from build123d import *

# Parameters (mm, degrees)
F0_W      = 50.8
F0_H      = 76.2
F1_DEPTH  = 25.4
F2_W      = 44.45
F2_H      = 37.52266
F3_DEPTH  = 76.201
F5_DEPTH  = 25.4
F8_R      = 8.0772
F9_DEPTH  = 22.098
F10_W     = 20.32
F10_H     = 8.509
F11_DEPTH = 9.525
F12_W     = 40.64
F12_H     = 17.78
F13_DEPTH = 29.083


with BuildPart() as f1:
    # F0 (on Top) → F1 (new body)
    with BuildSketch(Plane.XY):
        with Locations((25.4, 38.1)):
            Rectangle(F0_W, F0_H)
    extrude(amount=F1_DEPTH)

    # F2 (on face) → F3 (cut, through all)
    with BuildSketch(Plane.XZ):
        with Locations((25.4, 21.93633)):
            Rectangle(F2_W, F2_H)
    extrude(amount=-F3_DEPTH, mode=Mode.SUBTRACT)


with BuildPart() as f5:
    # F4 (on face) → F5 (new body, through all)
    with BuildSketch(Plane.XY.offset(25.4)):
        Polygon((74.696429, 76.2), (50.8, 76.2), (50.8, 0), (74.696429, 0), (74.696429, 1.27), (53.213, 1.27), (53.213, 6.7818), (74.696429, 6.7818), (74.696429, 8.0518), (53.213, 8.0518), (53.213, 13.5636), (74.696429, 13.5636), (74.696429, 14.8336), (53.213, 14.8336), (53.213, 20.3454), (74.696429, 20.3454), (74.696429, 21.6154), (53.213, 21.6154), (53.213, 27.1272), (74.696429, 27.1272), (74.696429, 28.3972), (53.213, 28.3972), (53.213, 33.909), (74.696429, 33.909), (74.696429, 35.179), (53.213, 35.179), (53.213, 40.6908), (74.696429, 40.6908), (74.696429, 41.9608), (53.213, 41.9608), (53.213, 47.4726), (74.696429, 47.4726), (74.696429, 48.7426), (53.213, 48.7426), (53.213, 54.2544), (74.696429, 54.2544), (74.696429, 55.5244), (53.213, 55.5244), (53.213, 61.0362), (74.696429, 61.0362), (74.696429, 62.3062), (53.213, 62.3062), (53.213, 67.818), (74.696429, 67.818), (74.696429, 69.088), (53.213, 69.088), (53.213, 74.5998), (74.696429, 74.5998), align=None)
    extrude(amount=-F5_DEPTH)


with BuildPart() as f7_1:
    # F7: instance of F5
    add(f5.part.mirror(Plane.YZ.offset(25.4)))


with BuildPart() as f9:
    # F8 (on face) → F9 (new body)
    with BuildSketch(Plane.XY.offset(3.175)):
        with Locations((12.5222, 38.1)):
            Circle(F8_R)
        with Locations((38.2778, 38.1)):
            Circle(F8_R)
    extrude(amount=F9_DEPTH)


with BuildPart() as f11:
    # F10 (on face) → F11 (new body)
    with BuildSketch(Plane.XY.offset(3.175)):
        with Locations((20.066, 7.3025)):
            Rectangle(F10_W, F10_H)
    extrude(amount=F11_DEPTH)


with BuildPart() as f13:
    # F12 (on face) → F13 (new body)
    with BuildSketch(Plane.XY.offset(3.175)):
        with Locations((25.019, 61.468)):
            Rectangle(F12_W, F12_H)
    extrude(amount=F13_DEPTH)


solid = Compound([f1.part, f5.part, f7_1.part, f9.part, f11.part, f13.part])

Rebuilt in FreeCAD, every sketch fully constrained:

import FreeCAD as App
import Part
import Sketcher

V = App.Vector
Q = App.Units.Quantity


def add_polygon(sketch, points):
    """Adds a closed chain of lines whose ends are joined by coincident constraints."""
    first, n = sketch.GeometryCount, len(points)
    for a, b in zip(points, points[1:] + points[:1]):
        sketch.addGeometry(Part.LineSegment(App.Vector(*a, 0), App.Vector(*b, 0)), False)
    for i in range(n):
        sketch.addConstraint(Sketcher.Constraint("Coincident", first + i, 2, first + (i + 1) % n, 1))

doc = App.newDocument("Part")
params = doc.addObject("Spreadsheet::Sheet", "Params")
for row, (alias, value) in enumerate([
    ("sketch1_width", "2 in"),
    ("sketch1_height", "3 in"),
    ("pad1_length", "1 in"),
    ("sketch2_width", "1.75 in"),
    ("sketch3_height", "3 in"),
    ("sketch3_height2", "0.05 in"),
    ("sketch3_height3", "0.217 in"),
    ("pad2_length", "1 in"),
    ("sketch4_diameter", "0.636 in"),
    ("pad3_length", "0.87 in"),
    ("sketch5_width", "0.8 in"),
    ("sketch5_height", "0.335 in"),
    ("pad4_length", "0.375 in"),
    ("sketch6_width", "1.6 in"),
    ("sketch6_height", "0.7 in"),
    ("pad5_length", "1.145 in"),
], start=1):
    params.set(f"A{row}", alias)
    params.set(f"B{row}", "=" + value)
    params.setAlias(f"B{row}", alias)

body = doc.addObject("PartDesign::Body", "Body")

sketch1 = doc.addObject("Sketcher::SketchObject", "Sketch")
body.addObject(sketch1)
sketch1.AttachmentSupport = (doc.XY_Plane, [""])
sketch1.MapMode = "FlatFace"
add_polygon(sketch1, [(0, 76), (0, 0), (51, 0), (51, 76)])
sketch1.addConstraint([
    Sketcher.Constraint("Vertical", 0),
    Sketcher.Constraint("Horizontal", 1),
    Sketcher.Constraint("Vertical", 2),
    Sketcher.Constraint("Horizontal", 3),
    Sketcher.Constraint("Coincident", 0, 2, -1, 1),
    Sketcher.Constraint("DistanceX", 1, 1, 1, 2, Q("2 in")),
    Sketcher.Constraint("DistanceY", 0, 2, 0, 1, Q("3 in")),
])
sketch1.setExpression("Constraints[9]", "Params.sketch1_width")
sketch1.setExpression("Constraints[10]", "Params.sketch1_height")
pad1 = doc.addObject("PartDesign::Pad", "Pad")
body.addObject(pad1)
pad1.Profile = sketch1
pad1.setExpression("Length", "Params.pad1_length")

sketch2 = doc.addObject("Sketcher::SketchObject", "Sketch001")
body.addObject(sketch2)
sketch2.AttachmentSupport = (doc.XZ_Plane, [""])
sketch2.MapMode = "FlatFace"
add_polygon(sketch2, [(3, 41), (3, 3), (48, 3), (48, 41)])
sketch2.addConstraint([
    Sketcher.Constraint("Vertical", 0),
    Sketcher.Constraint("Horizontal", 1),
    Sketcher.Constraint("Vertical", 2),
    Sketcher.Constraint("Horizontal", 3),
    Sketcher.Constraint("DistanceX", 1, 1, 1, 2, Q("1.75 in")),
    Sketcher.Constraint("DistanceX", -1, 1, 0, 2, Q("0.125 in")),
    Sketcher.Constraint("DistanceY", -1, 1, 0, 2, Q("0.125 in")),
    Sketcher.Constraint("DistanceY", 0, 2, 0, 1, Q("37.52266 mm")),
])
sketch2.setExpression("Constraints[8]", "Params.sketch2_width")
pocket1 = doc.addObject("PartDesign::Pocket", "Pocket")
body.addObject(pocket1)
pocket1.Profile = sketch2
pocket1.Type = "ThroughAll"
body2 = doc.addObject("PartDesign::Body", "Body001")

sketch3 = doc.addObject("Sketcher::SketchObject", "Sketch002")
body2.addObject(sketch3)
sketch3.AttachmentSupport = (doc.getObject("XY_Plane001"), [""])
sketch3.MapMode = "FlatFace"
sketch3.AttachmentOffset = App.Placement(V(0, 0, 1 * 25.4), App.Rotation())
add_polygon(sketch3, [(74.7, 76.2), (50.8, 76.2), (50.8, 0), (74.7, 0), (74.7, 1.3), (53.2, 1.3), (53.2, 6.8), (74.7, 6.8), (74.7, 8.1), (53.2, 8.1), (53.2, 13.6), (74.7, 13.6), (74.7, 14.8), (53.2, 14.8), (53.2, 20.3), (74.7, 20.3), (74.7, 21.6), (53.2, 21.6), (53.2, 27.1), (74.7, 27.1), (74.7, 28.4), (53.2, 28.4), (53.2, 33.9), (74.7, 33.9), (74.7, 35.2), (53.2, 35.2), (53.2, 40.7), (74.7, 40.7), (74.7, 42), (53.2, 42), (53.2, 47.5), (74.7, 47.5), (74.7, 48.7), (53.2, 48.7), (53.2, 54.3), (74.7, 54.3), (74.7, 55.5), (53.2, 55.5), (53.2, 61), (74.7, 61), (74.7, 62.3), (53.2, 62.3), (53.2, 67.8), (74.7, 67.8), (74.7, 69.1), (53.2, 69.1), (53.2, 74.6), (74.7, 74.6)])
sketch3.addConstraint([
    Sketcher.Constraint("Horizontal", 0),
    Sketcher.Constraint("Vertical", 1),
    Sketcher.Constraint("Horizontal", 2),
    Sketcher.Constraint("Vertical", 3),
    Sketcher.Constraint("Horizontal", 4),
    Sketcher.Constraint("Vertical", 5),
    Sketcher.Constraint("Horizontal", 6),
    Sketcher.Constraint("Vertical", 7),
    Sketcher.Constraint("Horizontal", 8),
    Sketcher.Constraint("Vertical", 9),
    Sketcher.Constraint("Horizontal", 10),
    Sketcher.Constraint("Vertical", 11),
    Sketcher.Constraint("Horizontal", 12),
    Sketcher.Constraint("Vertical", 13),
    Sketcher.Constraint("Horizontal", 14),
    Sketcher.Constraint("Vertical", 15),
    Sketcher.Constraint("Horizontal", 16),
    Sketcher.Constraint("Vertical", 17),
    Sketcher.Constraint("Horizontal", 18),
    Sketcher.Constraint("Vertical", 19),
    Sketcher.Constraint("Horizontal", 20),
    Sketcher.Constraint("Vertical", 21),
    Sketcher.Constraint("Horizontal", 22),
    Sketcher.Constraint("Vertical", 23),
    Sketcher.Constraint("Horizontal", 24),
    Sketcher.Constraint("Vertical", 25),
    Sketcher.Constraint("Horizontal", 26),
    Sketcher.Constraint("Vertical", 27),
    Sketcher.Constraint("Horizontal", 28),
    Sketcher.Constraint("Vertical", 29),
    Sketcher.Constraint("Horizontal", 30),
    Sketcher.Constraint("Vertical", 31),
    Sketcher.Constraint("Horizontal", 32),
    Sketcher.Constraint("Vertical", 33),
    Sketcher.Constraint("Horizontal", 34),
    Sketcher.Constraint("Vertical", 35),
    Sketcher.Constraint("Horizontal", 36),
    Sketcher.Constraint("Vertical", 37),
    Sketcher.Constraint("Horizontal", 38),
    Sketcher.Constraint("Vertical", 39),
    Sketcher.Constraint("Horizontal", 40),
    Sketcher.Constraint("Vertical", 41),
    Sketcher.Constraint("Horizontal", 42),
    Sketcher.Constraint("Vertical", 43),
    Sketcher.Constraint("Horizontal", 44),
    Sketcher.Constraint("Vertical", 45),
    Sketcher.Constraint("Horizontal", 46),
    Sketcher.Constraint("Vertical", 47),
    Sketcher.Constraint("PointOnObject", 1, 2, -1),
    Sketcher.Constraint("Vertical", 3, 2, 6, 2),
    Sketcher.Constraint("Vertical", 5, 2, 8, 2),
    Sketcher.Constraint("Vertical", 7, 2, 10, 2),
    Sketcher.Constraint("Vertical", 9, 2, 12, 2),
    Sketcher.Constraint("Vertical", 11, 2, 14, 2),
    Sketcher.Constraint("Vertical", 13, 2, 16, 2),
    Sketcher.Constraint("Vertical", 15, 2, 18, 2),
    Sketcher.Constraint("Vertical", 17, 2, 20, 2),
    Sketcher.Constraint("Vertical", 19, 2, 22, 2),
    Sketcher.Constraint("Vertical", 21, 2, 24, 2),
    Sketcher.Constraint("Vertical", 23, 2, 26, 2),
    Sketcher.Constraint("Vertical", 25, 2, 28, 2),
    Sketcher.Constraint("Vertical", 27, 2, 30, 2),
    Sketcher.Constraint("Vertical", 29, 2, 32, 2),
    Sketcher.Constraint("Vertical", 31, 2, 34, 2),
    Sketcher.Constraint("Vertical", 33, 2, 36, 2),
    Sketcher.Constraint("Vertical", 35, 2, 38, 2),
    Sketcher.Constraint("Vertical", 37, 2, 40, 2),
    Sketcher.Constraint("Vertical", 39, 2, 42, 2),
    Sketcher.Constraint("Vertical", 41, 2, 44, 2),
    Sketcher.Constraint("Vertical", 43, 2, 46, 2),
    Sketcher.Constraint("Equal", 3, 7),
    Sketcher.Constraint("Equal", 5, 9),
    Sketcher.Constraint("Equal", 7, 11),
    Sketcher.Constraint("Equal", 9, 13),
    Sketcher.Constraint("Equal", 11, 15),
    Sketcher.Constraint("Equal", 13, 17),
    Sketcher.Constraint("Equal", 15, 19),
    Sketcher.Constraint("Equal", 17, 21),
    Sketcher.Constraint("Equal", 19, 23),
    Sketcher.Constraint("Equal", 21, 25),
    Sketcher.Constraint("Equal", 23, 27),
    Sketcher.Constraint("Equal", 25, 29),
    Sketcher.Constraint("Equal", 27, 31),
    Sketcher.Constraint("Equal", 29, 33),
    Sketcher.Constraint("Equal", 31, 35),
    Sketcher.Constraint("Equal", 33, 37),
    Sketcher.Constraint("Equal", 35, 39),
    Sketcher.Constraint("Equal", 37, 41),
    Sketcher.Constraint("Equal", 39, 43),
    Sketcher.Constraint("Equal", 41, 45),
    Sketcher.Constraint("DistanceY", 1, 2, 1, 1, Q("3 in")),
    Sketcher.Constraint("DistanceX", -1, 1, 0, 2, Q("2 in")),
    Sketcher.Constraint("DistanceY", 3, 1, 3, 2, Q("0.05 in")),
    Sketcher.Constraint("DistanceY", 5, 1, 5, 2, Q("0.217 in")),
    Sketcher.Constraint("DistanceX", -1, 1, 4, 2, Q("2.095 in")),
    Sketcher.Constraint("DistanceX", 0, 2, 0, 1, Q("23.896429 mm")),
])
sketch3.setExpression("Constraints[138]", "Params.sketch3_height")
sketch3.setExpression("Constraints[140]", "Params.sketch3_height2")
sketch3.setExpression("Constraints[141]", "Params.sketch3_height3")
pad2 = doc.addObject("PartDesign::Pad", "Pad001")
body2.addObject(pad2)
pad2.Profile = sketch3
pad2.setExpression("Length", "Params.pad2_length")
pad2.Reversed = True
body3 = doc.addObject("PartDesign::Body", "Body002")
doc.recompute()

mirroring = doc.addObject("Part::Mirroring", "Mirroring")
mirroring.Source = body2
mirroring.Base = V(25.4, 0, 0)
mirroring.Normal = V(1, 0, 0)
body3.BaseFeature = mirroring
doc.recompute()
body4 = doc.addObject("PartDesign::Body", "Body003")
body4.AllowCompound = True

sketch4 = doc.addObject("Sketcher::SketchObject", "Sketch003")
body4.addObject(sketch4)
sketch4.AttachmentSupport = (doc.getObject("XY_Plane003"), [""])
sketch4.MapMode = "FlatFace"
sketch4.AttachmentOffset = App.Placement(V(0, 0, 0.125 * 25.4), App.Rotation())
sketch4.addGeometry([
    Part.Circle(V(13, 38, 0), V(0, 0, 1), 8),
    Part.Circle(V(38, 38, 0), V(0, 0, 1), 8),
], False)
sketch4.addConstraint([
    Sketcher.Constraint("Equal", 0, 1),
    Sketcher.Constraint("Horizontal", 0, 3, 1, 3),
    Sketcher.Constraint("Diameter", 0, Q("0.636 in")),
    Sketcher.Constraint("DistanceY", -1, 1, 0, 3, Q("1.5 in")),
    Sketcher.Constraint("DistanceX", -1, 1, 0, 3, Q("0.493 in")),
    Sketcher.Constraint("DistanceX", -1, 1, 1, 3, Q("1.507 in")),
])
sketch4.setExpression("Constraints[2]", "Params.sketch4_diameter")
pad3 = doc.addObject("PartDesign::Pad", "Pad002")
body4.addObject(pad3)
pad3.Profile = sketch4
pad3.setExpression("Length", "Params.pad3_length")
body5 = doc.addObject("PartDesign::Body", "Body004")

sketch5 = doc.addObject("Sketcher::SketchObject", "Sketch004")
body5.addObject(sketch5)
sketch5.AttachmentSupport = (doc.getObject("XY_Plane004"), [""])
sketch5.MapMode = "FlatFace"
sketch5.AttachmentOffset = App.Placement(V(0, 0, 0.125 * 25.4), App.Rotation())
add_polygon(sketch5, [(10, 12), (10, 3), (30, 3), (30, 12)])
sketch5.addConstraint([
    Sketcher.Constraint("Vertical", 0),
    Sketcher.Constraint("Horizontal", 1),
    Sketcher.Constraint("Vertical", 2),
    Sketcher.Constraint("Horizontal", 3),
    Sketcher.Constraint("DistanceX", 1, 1, 1, 2, Q("0.8 in")),
    Sketcher.Constraint("DistanceY", 0, 2, 0, 1, Q("0.335 in")),
    Sketcher.Constraint("DistanceX", -1, 1, 0, 2, Q("0.39 in")),
    Sketcher.Constraint("DistanceY", -1, 1, 0, 2, Q("0.12 in")),
])
sketch5.setExpression("Constraints[8]", "Params.sketch5_width")
sketch5.setExpression("Constraints[9]", "Params.sketch5_height")
pad4 = doc.addObject("PartDesign::Pad", "Pad003")
body5.addObject(pad4)
pad4.Profile = sketch5
pad4.setExpression("Length", "Params.pad4_length")
body6 = doc.addObject("PartDesign::Body", "Body005")

sketch6 = doc.addObject("Sketcher::SketchObject", "Sketch005")
body6.addObject(sketch6)
sketch6.AttachmentSupport = (doc.getObject("XY_Plane005"), [""])
sketch6.MapMode = "FlatFace"
sketch6.AttachmentOffset = App.Placement(V(0, 0, 0.125 * 25.4), App.Rotation())
add_polygon(sketch6, [(5, 70), (5, 53), (45, 53), (45, 70)])
sketch6.addConstraint([
    Sketcher.Constraint("Vertical", 0),
    Sketcher.Constraint("Horizontal", 1),
    Sketcher.Constraint("Vertical", 2),
    Sketcher.Constraint("Horizontal", 3),
    Sketcher.Constraint("DistanceX", 1, 1, 1, 2, Q("1.6 in")),
    Sketcher.Constraint("DistanceY", 0, 2, 0, 1, Q("0.7 in")),
    Sketcher.Constraint("DistanceY", -1, 1, 0, 2, Q("2.07 in")),
    Sketcher.Constraint("DistanceX", -1, 1, 0, 2, Q("0.185 in")),
])
sketch6.setExpression("Constraints[8]", "Params.sketch6_width")
sketch6.setExpression("Constraints[9]", "Params.sketch6_height")
pad5 = doc.addObject("PartDesign::Pad", "Pad004")
body6.addObject(pad5)
pad5.Profile = sketch6
pad5.setExpression("Length", "Params.pad5_length")
mirroring.Visibility = False

doc.recompute()
